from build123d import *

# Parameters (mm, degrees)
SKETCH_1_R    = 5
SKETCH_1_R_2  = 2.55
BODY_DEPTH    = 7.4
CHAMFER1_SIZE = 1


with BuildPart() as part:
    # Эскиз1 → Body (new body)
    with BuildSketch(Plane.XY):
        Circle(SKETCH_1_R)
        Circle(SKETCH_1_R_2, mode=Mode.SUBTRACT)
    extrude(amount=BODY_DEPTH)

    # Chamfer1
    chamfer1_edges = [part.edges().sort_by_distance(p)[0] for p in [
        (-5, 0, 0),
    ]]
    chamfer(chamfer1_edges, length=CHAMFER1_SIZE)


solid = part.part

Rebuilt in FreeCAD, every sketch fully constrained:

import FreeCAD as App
import Part
import Sketcher


def edges_at(feature, points):
    """Names of the edges that pass closest to the given points."""
    edges = feature.Shape.Edges
    near = lambda p: min(range(len(edges)), key=lambda i: edges[i].distToShape(Part.Vertex(*p))[0])
    return sorted({f"Edge{near(p) + 1}" for p in points})

doc = App.newDocument("Part")
body = doc.addObject("PartDesign::Body", "Body")

sketch1 = body.newObject("Sketcher::SketchObject", "Sketch")
sketch1.AttachmentSupport = (doc.getObject("XY_Plane"), [""])
sketch1.MapMode = "FlatFace"
sketch1.addGeometry(Part.Circle(App.Vector(0, 0, 0), App.Vector(0, 0, 1), 5), False)
sketch1.addGeometry(Part.Circle(App.Vector(0, 0, 0), App.Vector(0, 0, 1), 2.5), False)
sketch1.addConstraint(Sketcher.Constraint("Coincident", 0, 3, -1, 1))
sketch1.addConstraint(Sketcher.Constraint("Coincident", 1, 3, -1, 1))
sketch1.addConstraint(Sketcher.Constraint("Diameter", 0, 10.0))
sketch1.addConstraint(Sketcher.Constraint("Diameter", 1, 5.1))
pad1 = body.newObject("PartDesign::Pad", "Pad")
pad1.Profile = sketch1
pad1.Length = 7.4
doc.recompute()

chamfer = body.newObject("PartDesign::Chamfer", "Chamfer")
chamfer.Base = (pad1, edges_at(pad1, [(-5, 0, 0)]))
chamfer.Size = 1

doc.recompute()
